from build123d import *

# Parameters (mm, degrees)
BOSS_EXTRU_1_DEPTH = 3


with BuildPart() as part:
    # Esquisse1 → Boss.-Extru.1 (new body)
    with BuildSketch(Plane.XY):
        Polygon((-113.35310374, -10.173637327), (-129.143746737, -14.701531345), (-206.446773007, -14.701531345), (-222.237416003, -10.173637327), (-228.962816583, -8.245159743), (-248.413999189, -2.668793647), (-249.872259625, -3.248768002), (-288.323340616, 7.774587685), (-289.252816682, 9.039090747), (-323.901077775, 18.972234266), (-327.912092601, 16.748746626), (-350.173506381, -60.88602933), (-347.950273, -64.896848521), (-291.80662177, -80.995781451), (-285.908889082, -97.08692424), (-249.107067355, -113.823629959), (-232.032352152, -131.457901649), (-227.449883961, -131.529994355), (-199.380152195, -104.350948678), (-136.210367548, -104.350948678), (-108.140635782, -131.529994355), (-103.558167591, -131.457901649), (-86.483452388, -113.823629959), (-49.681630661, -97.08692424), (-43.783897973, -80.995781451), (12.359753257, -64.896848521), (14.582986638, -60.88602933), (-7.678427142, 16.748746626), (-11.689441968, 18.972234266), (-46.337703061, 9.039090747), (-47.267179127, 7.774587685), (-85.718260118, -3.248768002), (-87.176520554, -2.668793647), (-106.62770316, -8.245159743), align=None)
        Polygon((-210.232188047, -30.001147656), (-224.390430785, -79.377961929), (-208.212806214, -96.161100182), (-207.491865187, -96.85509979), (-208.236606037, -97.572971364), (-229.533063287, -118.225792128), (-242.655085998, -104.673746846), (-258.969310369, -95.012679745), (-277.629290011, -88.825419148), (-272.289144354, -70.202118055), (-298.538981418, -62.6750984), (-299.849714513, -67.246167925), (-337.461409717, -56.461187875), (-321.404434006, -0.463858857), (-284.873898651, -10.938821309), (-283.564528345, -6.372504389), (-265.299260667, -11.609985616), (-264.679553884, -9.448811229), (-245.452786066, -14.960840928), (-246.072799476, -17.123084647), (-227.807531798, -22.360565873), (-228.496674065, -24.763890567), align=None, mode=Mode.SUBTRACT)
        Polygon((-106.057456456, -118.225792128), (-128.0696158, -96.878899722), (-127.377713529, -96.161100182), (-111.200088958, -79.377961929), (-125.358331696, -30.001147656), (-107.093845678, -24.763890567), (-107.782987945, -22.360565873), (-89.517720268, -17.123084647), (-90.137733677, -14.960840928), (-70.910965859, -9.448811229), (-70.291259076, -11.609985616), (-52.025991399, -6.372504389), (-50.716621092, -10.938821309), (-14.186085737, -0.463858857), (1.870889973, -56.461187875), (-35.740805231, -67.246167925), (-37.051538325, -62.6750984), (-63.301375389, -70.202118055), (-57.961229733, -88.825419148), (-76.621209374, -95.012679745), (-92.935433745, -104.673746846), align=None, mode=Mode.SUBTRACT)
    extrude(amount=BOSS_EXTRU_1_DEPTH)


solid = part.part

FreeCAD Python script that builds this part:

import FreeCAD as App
import Part
import Sketcher
from FreeCAD import Vector
Q = App.Units.Quantity

doc = App.newDocument("Part")
body = doc.addObject("PartDesign::Body", "Body")

# Sketch on XY plane
sketch1 = body.newObject("Sketcher::SketchObject", "Sketch")
sketch1.AttachmentSupport = (doc.getObject("XY_Plane"), [""])
sketch1.MapMode = "FlatFace"
sketch1.addGeometry(Part.LineSegment(Vector(-113.4, -10.2, 0), Vector(-129.1, -14.7, 0)), False)
sketch1.addGeometry(Part.LineSegment(Vector(-129.1, -14.7, 0), Vector(-206.4, -14.7, 0)), False)
sketch1.addGeometry(Part.LineSegment(Vector(-206.4, -14.7, 0), Vector(-229, -8.2, 0)), False)
sketch1.addGeometry(Part.LineSegment(Vector(-229, -8.2, 0), Vector(-248.4, -2.7, 0)), False)
sketch1.addGeometry(Part.LineSegment(Vector(-248.4, -2.7, 0), Vector(-249.9, -3.2, 0)), False)
sketch1.addGeometry(Part.LineSegment(Vector(-249.9, -3.2, 0), Vector(-288.3, 7.8, 0)), False)
sketch1.addGeometry(Part.LineSegment(Vector(-288.3, 7.8, 0), Vector(-289.3, 9, 0)), False)
sketch1.addGeometry(Part.LineSegment(Vector(-289.3, 9, 0), Vector(-323.9, 19, 0)), False)
sketch1.addGeometry(Part.LineSegment(Vector(-323.9, 19, 0), Vector(-327.9, 16.7, 0)), False)
sketch1.addGeometry(Part.LineSegment(Vector(-327.9, 16.7, 0), Vector(-350.2, -60.9, 0)), False)
sketch1.addGeometry(Part.LineSegment(Vector(-350.2, -60.9, 0), Vector(-348, -64.9, 0)), False)
sketch1.addGeometry(Part.LineSegment(Vector(-348, -64.9, 0), Vector(-291.8, -81, 0)), False)
sketch1.addGeometry(Part.LineSegment(Vector(-291.8, -81, 0), Vector(-285.9, -97.1, 0)), False)
sketch1.addGeometry(Part.LineSegment(Vector(-285.9, -97.1, 0), Vector(-249.1, -113.8, 0)), False)
sketch1.addGeometry(Part.LineSegment(Vector(-249.1, -113.8, 0), Vector(-232, -131.5, 0)), False)
sketch1.addGeometry(Part.LineSegment(Vector(-232, -131.5, 0), Vector(-227.4, -131.5, 0)), False)
sketch1.addGeometry(Part.LineSegment(Vector(-227.4, -131.5, 0), Vector(-199.4, -104.4, 0)), False)
sketch1.addGeometry(Part.LineSegment(Vector(-199.4, -104.4, 0), Vector(-136.2, -104.4, 0)), False)
sketch1.addGeometry(Part.LineSegment(Vector(-136.2, -104.4, 0), Vector(-108.1, -131.5, 0)), False)
sketch1.addGeometry(Part.LineSegment(Vector(-108.1, -131.5, 0), Vector(-103.6, -131.5, 0)), False)
sketch1.addGeometry(Part.LineSegment(Vector(-103.6, -131.5, 0), Vector(-86.5, -113.8, 0)), False)
sketch1.addGeometry(Part.LineSegment(Vector(-86.5, -113.8, 0), Vector(-49.7, -97.1, 0)), False)
sketch1.addGeometry(Part.LineSegment(Vector(-49.7, -97.1, 0), Vector(-43.8, -81, 0)), False)
sketch1.addGeometry(Part.LineSegment(Vector(-43.8, -81, 0), Vector(12.4, -64.9, 0)), False)
sketch1.addGeometry(Part.LineSegment(Vector(12.4, -64.9, 0), Vector(14.6, -60.9, 0)), False)
sketch1.addGeometry(Part.LineSegment(Vector(14.6, -60.9, 0), Vector(-7.7, 16.7, 0)), False)
sketch1.addGeometry(Part.LineSegment(Vector(-7.7, 16.7, 0), Vector(-11.7, 19, 0)), False)
sketch1.addGeometry(Part.LineSegment(Vector(-11.7, 19, 0), Vector(-46.3, 9, 0)), False)
sketch1.addGeometry(Part.LineSegment(Vector(-46.3, 9, 0), Vector(-47.3, 7.8, 0)), False)
sketch1.addGeometry(Part.LineSegment(Vector(-47.3, 7.8, 0), Vector(-85.7, -3.2, 0)), False)
sketch1.addGeometry(Part.LineSegment(Vector(-85.7, -3.2, 0), Vector(-87.2, -2.7, 0)), False)
sketch1.addGeometry(Part.LineSegment(Vector(-87.2, -2.7, 0), Vector(-106.6, -8.2, 0)), False)
sketch1.addGeometry(Part.LineSegment(Vector(-106.6, -8.2, 0), Vector(-113.4, -10.2, 0)), False)
sketch1.addGeometry(Part.LineSegment(Vector(-228.5, -24.8, 0), Vector(-210.2, -30, 0)), False)
sketch1.addGeometry(Part.LineSegment(Vector(-210.2, -30, 0), Vector(-224.4, -79.4, 0)), False)
sketch1.addGeometry(Part.LineSegment(Vector(-224.4, -79.4, 0), Vector(-208.2, -96.2, 0)), False)
sketch1.addGeometry(Part.LineSegment(Vector(-208.2, -96.2, 0), Vector(-207.5, -96.9, 0)), False)
sketch1.addGeometry(Part.LineSegment(Vector(-207.5, -96.9, 0), Vector(-208.2, -97.6, 0)), False)
sketch1.addGeometry(Part.LineSegment(Vector(-208.2, -97.6, 0), Vector(-229.5, -118.2, 0)), False)
sketch1.addGeometry(Part.LineSegment(Vector(-229.5, -118.2, 0), Vector(-242.7, -104.7, 0)), False)
sketch1.addGeometry(Part.LineSegment(Vector(-242.7, -104.7, 0), Vector(-259, -95, 0)), False)
sketch1.addGeometry(Part.LineSegment(Vector(-259, -95, 0), Vector(-277.6, -88.8, 0)), False)
sketch1.addGeometry(Part.LineSegment(Vector(-277.6, -88.8, 0), Vector(-272.3, -70.2, 0)), False)
sketch1.addGeometry(Part.LineSegment(Vector(-272.3, -70.2, 0), Vector(-298.5, -62.7, 0)), False)
sketch1.addGeometry(Part.LineSegment(Vector(-298.5, -62.7, 0), Vector(-299.8, -67.2, 0)), False)
sketch1.addGeometry(Part.LineSegment(Vector(-299.8, -67.2, 0), Vector(-337.5, -56.5, 0)), False)
sketch1.addGeometry(Part.LineSegment(Vector(-337.5, -56.5, 0), Vector(-321.4, -0.5, 0)), False)
sketch1.addGeometry(Part.LineSegment(Vector(-321.4, -0.5, 0), Vector(-284.9, -10.9, 0)), False)
sketch1.addGeometry(Part.LineSegment(Vector(-284.9, -10.9, 0), Vector(-283.6, -6.4, 0)), False)
sketch1.addGeometry(Part.LineSegment(Vector(-283.6, -6.4, 0), Vector(-265.3, -11.6, 0)), False)
sketch1.addGeometry(Part.LineSegment(Vector(-265.3, -11.6, 0), Vector(-264.7, -9.4, 0)), False)
sketch1.addGeometry(Part.LineSegment(Vector(-264.7, -9.4, 0), Vector(-245.5, -15, 0)), False)
sketch1.addGeometry(Part.LineSegment(Vector(-245.5, -15, 0), Vector(-246.1, -17.1, 0)), False)
sketch1.addGeometry(Part.LineSegment(Vector(-246.1, -17.1, 0), Vector(-227.8, -22.4, 0)), False)
sketch1.addGeometry(Part.LineSegment(Vector(-227.8, -22.4, 0), Vector(-228.5, -24.8, 0)), False)
sketch1.addGeometry(Part.LineSegment(Vector(-92.9, -104.7, 0), Vector(-106.1, -118.2, 0)), False)
sketch1.addGeometry(Part.LineSegment(Vector(-106.1, -118.2, 0), Vector(-128.1, -96.9, 0)), False)
sketch1.addGeometry(Part.LineSegment(Vector(-128.1, -96.9, 0), Vector(-127.4, -96.2, 0)), False)
sketch1.addGeometry(Part.LineSegment(Vector(-127.4, -96.2, 0), Vector(-111.2, -79.4, 0)), False)
sketch1.addGeometry(Part.LineSegment(Vector(-111.2, -79.4, 0), Vector(-125.4, -30, 0)), False)
sketch1.addGeometry(Part.LineSegment(Vector(-125.4, -30, 0), Vector(-107.1, -24.8, 0)), False)
sketch1.addGeometry(Part.LineSegment(Vector(-107.1, -24.8, 0), Vector(-107.8, -22.4, 0)), False)
sketch1.addGeometry(Part.LineSegment(Vector(-107.8, -22.4, 0), Vector(-89.5, -17.1, 0)), False)
sketch1.addGeometry(Part.LineSegment(Vector(-89.5, -17.1, 0), Vector(-90.1, -15, 0)), False)
sketch1.addGeometry(Part.LineSegment(Vector(-90.1, -15, 0), Vector(-70.9, -9.4, 0)), False)
sketch1.addGeometry(Part.LineSegment(Vector(-70.9, -9.4, 0), Vector(-70.3, -11.6, 0)), False)
sketch1.addGeometry(Part.LineSegment(Vector(-70.3, -11.6, 0), Vector(-52, -6.4, 0)), False)
sketch1.addGeometry(Part.LineSegment(Vector(-52, -6.4, 0), Vector(-50.7, -10.9, 0)), False)
sketch1.addGeometry(Part.LineSegment(Vector(-50.7, -10.9, 0), Vector(-14.2, -0.5, 0)), False)
sketch1.addGeometry(Part.LineSegment(Vector(-14.2, -0.5, 0), Vector(1.9, -56.5, 0)), False)
sketch1.addGeometry(Part.LineSegment(Vector(1.9, -56.5, 0), Vector(-35.7, -67.2, 0)), False)
sketch1.addGeometry(Part.LineSegment(Vector(-35.7, -67.2, 0), Vector(-37.1, -62.7, 0)), False)
sketch1.addGeometry(Part.LineSegment(Vector(-37.1, -62.7, 0), Vector(-63.3, -70.2, 0)), False)
sketch1.addGeometry(Part.LineSegment(Vector(-63.3, -70.2, 0), Vector(-58, -88.8, 0)), False)
sketch1.addGeometry(Part.LineSegment(Vector(-58, -88.8, 0), Vector(-76.6, -95, 0)), False)
sketch1.addGeometry(Part.LineSegment(Vector(-76.6, -95, 0), Vector(-92.9, -104.7, 0)), False)
sketch1.addConstraint(Sketcher.Constraint("Coincident", 0, 2, 1, 1))
sketch1.addConstraint(Sketcher.Constraint("Coincident", 1, 2, 2, 1))
sketch1.addConstraint(Sketcher.Constraint("Coincident", 2, 2, 3, 1))
sketch1.addConstraint(Sketcher.Constraint("Coincident", 3, 2, 4, 1))
sketch1.addConstraint(Sketcher.Constraint("Coincident", 4, 2, 5, 1))
sketch1.addConstraint(Sketcher.Constraint("Coincident", 5, 2, 6, 1))
sketch1.addConstraint(Sketcher.Constraint("Coincident", 6, 2, 7, 1))
sketch1.addConstraint(Sketcher.Constraint("Coincident", 7, 2, 8, 1))
sketch1.addConstraint(Sketcher.Constraint("Coincident", 8, 2, 9, 1))
sketch1.addConstraint(Sketcher.Constraint("Coincident", 9, 2, 10, 1))
sketch1.addConstraint(Sketcher.Constraint("Coincident", 10, 2, 11, 1))
sketch1.addConstraint(Sketcher.Constraint("Coincident", 11, 2, 12, 1))
sketch1.addConstraint(Sketcher.Constraint("Coincident", 12, 2, 13, 1))
sketch1.addConstraint(Sketcher.Constraint("Coincident", 13, 2, 14, 1))
sketch1.addConstraint(Sketcher.Constraint("Coincident", 14, 2, 15, 1))
sketch1.addConstraint(Sketcher.Constraint("Coincident", 15, 2, 16, 1))
sketch1.addConstraint(Sketcher.Constraint("Coincident", 16, 2, 17, 1))
sketch1.addConstraint(Sketcher.Constraint("Coincident", 17, 2, 18, 1))
sketch1.addConstraint(Sketcher.Constraint("Coincident", 18, 2, 19, 1))
sketch1.addConstraint(Sketcher.Constraint("Coincident", 19, 2, 20, 1))
sketch1.addConstraint(Sketcher.Constraint("Coincident", 20, 2, 21, 1))
sketch1.addConstraint(Sketcher.Constraint("Coincident", 21, 2, 22, 1))
sketch1.addConstraint(Sketcher.Constraint("Coincident", 22, 2, 23, 1))
sketch1.addConstraint(Sketcher.Constraint("Coincident", 23, 2, 24, 1))
sketch1.addConstraint(Sketcher.Constraint("Coincident", 24, 2, 25, 1))
sketch1.addConstraint(Sketcher.Constraint("Coincident", 25, 2, 26, 1))
sketch1.addConstraint(Sketcher.Constraint("Coincident", 26, 2, 27, 1))
sketch1.addConstraint(Sketcher.Constraint("Coincident", 27, 2, 28, 1))
sketch1.addConstraint(Sketcher.Constraint("Coincident", 28, 2, 29, 1))
sketch1.addConstraint(Sketcher.Constraint("Coincident", 29, 2, 30, 1))
sketch1.addConstraint(Sketcher.Constraint("Coincident", 30, 2, 31, 1))
sketch1.addConstraint(Sketcher.Constraint("Coincident", 31, 2, 32, 1))
sketch1.addConstraint(Sketcher.Constraint("Coincident", 32, 2, 0, 1))
sketch1.addConstraint(Sketcher.Constraint("Coincident", 33, 2, 34, 1))
sketch1.addConstraint(Sketcher.Constraint("Coincident", 34, 2, 35, 1))
sketch1.addConstraint(Sketcher.Constraint("Coincident", 35, 2, 36, 1))
sketch1.addConstraint(Sketcher.Constraint("Coincident", 36, 2, 37, 1))
sketch1.addConstraint(Sketcher.Constraint("Coincident", 37, 2, 38, 1))
sketch1.addConstraint(Sketcher.Constraint("Coincident", 38, 2, 39, 1))
sketch1.addConstraint(Sketcher.Constraint("Coincident", 39, 2, 40, 1))
sketch1.addConstraint(Sketcher.Constraint("Coincident", 40, 2, 41, 1))
sketch1.addConstraint(Sketcher.Constraint("Coincident", 41, 2, 42, 1))
sketch1.addConstraint(Sketcher.Constraint("Coincident", 42, 2, 43, 1))
sketch1.addConstraint(Sketcher.Constraint("Coincident", 43, 2, 44, 1))
sketch1.addConstraint(Sketcher.Constraint("Coincident", 44, 2, 45, 1))
sketch1.addConstraint(Sketcher.Constraint("Coincident", 45, 2, 46, 1))
sketch1.addConstraint(Sketcher.Constraint("Coincident", 46, 2, 47, 1))
sketch1.addConstraint(Sketcher.Constraint("Coincident", 47, 2, 48, 1))
sketch1.addConstraint(Sketcher.Constraint("Coincident", 48, 2, 49, 1))
sketch1.addConstraint(Sketcher.Constraint("Coincident", 49, 2, 50, 1))
sketch1.addConstraint(Sketcher.Constraint("Coincident", 50, 2, 51, 1))
sketch1.addConstraint(Sketcher.Constraint("Coincident", 51, 2, 52, 1))
sketch1.addConstraint(Sketcher.Constraint("Coincident", 52, 2, 53, 1))
sketch1.addConstraint(Sketcher.Constraint("Coincident", 53, 2, 54, 1))
sketch1.addConstraint(Sketcher.Constraint("Coincident", 54, 2, 33, 1))
sketch1.addConstraint(Sketcher.Constraint("Coincident", 55, 2, 56, 1))
sketch1.addConstraint(Sketcher.Constraint("Coincident", 56, 2, 57, 1))
sketch1.addConstraint(Sketcher.Constraint("Coincident", 57, 2, 58, 1))
sketch1.addConstraint(Sketcher.Constraint("Coincident", 58, 2, 59, 1))
sketch1.addConstraint(Sketcher.Constraint("Coincident", 59, 2, 60, 1))
sketch1.addConstraint(Sketcher.Constraint("Coincident", 60, 2, 61, 1))
sketch1.addConstraint(Sketcher.Constraint("Coincident", 61, 2, 62, 1))
sketch1.addConstraint(Sketcher.Constraint("Coincident", 62, 2, 63, 1))
sketch1.addConstraint(Sketcher.Constraint("Coincident", 63, 2, 64, 1))
sketch1.addConstraint(Sketcher.Constraint("Coincident", 64, 2, 65, 1))
sketch1.addConstraint(Sketcher.Constraint("Coincident", 65, 2, 66, 1))
sketch1.addConstraint(Sketcher.Constraint("Coincident", 66, 2, 67, 1))
sketch1.addConstraint(Sketcher.Constraint("Coincident", 67, 2, 68, 1))
sketch1.addConstraint(Sketcher.Constraint("Coincident", 68, 2, 69, 1))
sketch1.addConstraint(Sketcher.Constraint("Coincident", 69, 2, 70, 1))
sketch1.addConstraint(Sketcher.Constraint("Coincident", 70, 2, 71, 1))
sketch1.addConstraint(Sketcher.Constraint("Coincident", 71, 2, 72, 1))
sketch1.addConstraint(Sketcher.Constraint("Coincident", 72, 2, 73, 1))
sketch1.addConstraint(Sketcher.Constraint("Coincident", 73, 2, 74, 1))
sketch1.addConstraint(Sketcher.Constraint("Coincident", 74, 2, 75, 1))
sketch1.addConstraint(Sketcher.Constraint("Coincident", 75, 2, 55, 1))
sketch1.addConstraint(Sketcher.Constraint("Horizontal", 1))
sketch1.addConstraint(Sketcher.Constraint("Horizontal", 17))
sketch1.addConstraint(Sketcher.Constraint("Parallel", 3, 5))
sketch1.addConstraint(Sketcher.Constraint("Parallel", 5, 7))
sketch1.addConstraint(Sketcher.Constraint("Perpendicular", 2, 9))
sketch1.addConstraint(Sketcher.Constraint("Perpendicular", 9, 11))
sketch1.addConstraint(Sketcher.Constraint("Perpendicular", 14, 16))
sketch1.addConstraint(Sketcher.Constraint("Perpendicular", 18, 20))
sketch1.addConstraint(Sketcher.Constraint("Parallel", 0, 23))
sketch1.addConstraint(Sketcher.Constraint("Perpendicular", 23, 25))
sketch1.addConstraint(Sketcher.Constraint("Parallel", 27, 29))
sketch1.addConstraint(Sketcher.Constraint("Parallel", 29, 31))
sketch1.addConstraint(Sketcher.Constraint("Perpendicular", 25, 32))
sketch1.addConstraint(Sketcher.Constraint("Parallel", 11, 33))
sketch1.addConstraint(Sketcher.Constraint("Perpendicular", 35, 37))
sketch1.addConstraint(Sketcher.Constraint("Perpendicular", 16, 39))
sketch1.addConstraint(Sketcher.Constraint("Perpendicular", 33, 42))
sketch1.addConstraint(Sketcher.Constraint("Perpendicular", 42, 43))
sketch1.addConstraint(Sketcher.Constraint("Perpendicular", 43, 44))
sketch1.addConstraint(Sketcher.Constraint("Perpendicular", 44, 45))
sketch1.addConstraint(Sketcher.Constraint("Perpendicular", 45, 46))
sketch1.addConstraint(Sketcher.Constraint("Perpendicular", 46, 47))
sketch1.addConstraint(Sketcher.Constraint("Perpendicular", 47, 48))
sketch1.addConstraint(Sketcher.Constraint("Perpendicular", 48, 49))
sketch1.addConstraint(Sketcher.Constraint("Perpendicular", 49, 50))
sketch1.addConstraint(Sketcher.Constraint("Parallel", 7, 51))
sketch1.addConstraint(Sketcher.Constraint("Parallel", 50, 52))
sketch1.addConstraint(Sketcher.Constraint("Perpendicular", 52, 53))
sketch1.addConstraint(Sketcher.Constraint("Perpendicular", 53, 54))
sketch1.addConstraint(Sketcher.Constraint("Parallel", 20, 55))
sketch1.addConstraint(Sketcher.Constraint("Parallel", 57, 58))
sketch1.addConstraint(Sketcher.Constraint("Parallel", 32, 60))
sketch1.addConstraint(Sketcher.Constraint("Perpendicular", 60, 61))
sketch1.addConstraint(Sketcher.Constraint("Perpendicular", 61, 62))
sketch1.addConstraint(Sketcher.Constraint("Perpendicular", 62, 63))
sketch1.addConstraint(Sketcher.Constraint("Parallel", 31, 64))
sketch1.addConstraint(Sketcher.Constraint("Parallel", 63, 65))
sketch1.addConstraint(Sketcher.Constraint("Perpendicular", 65, 66))
sketch1.addConstraint(Sketcher.Constraint("Perpendicular", 66, 67))
sketch1.addConstraint(Sketcher.Constraint("Perpendicular", 67, 68))
sketch1.addConstraint(Sketcher.Constraint("Perpendicular", 68, 69))
sketch1.addConstraint(Sketcher.Constraint("Perpendicular", 69, 70))
sketch1.addConstraint(Sketcher.Constraint("Perpendicular", 70, 71))
sketch1.addConstraint(Sketcher.Constraint("Perpendicular", 71, 72))
sketch1.addConstraint(Sketcher.Constraint("Perpendicular", 72, 73))
sketch1.addConstraint(Sketcher.Constraint("Horizontal", 15, 2, 18, 2))
sketch1.addConstraint(Sketcher.Constraint("Horizontal", 14, 2, 19, 2))
sketch1.addConstraint(Sketcher.Constraint("Horizontal", 13, 2, 20, 2))
sketch1.addConstraint(Sketcher.Constraint("Horizontal", 12, 2, 21, 2))
sketch1.addConstraint(Sketcher.Constraint("Horizontal", 11, 2, 22, 2))
sketch1.addConstraint(Sketcher.Constraint("Horizontal", 10, 2, 23, 2))
sketch1.addConstraint(Sketcher.Constraint("Horizontal", 9, 2, 24, 2))
sketch1.addConstraint(Sketcher.Constraint("Horizontal", 8, 2, 25, 2))
sketch1.addConstraint(Sketcher.Constraint("Horizontal", 7, 2, 26, 2))
sketch1.addConstraint(Sketcher.Constraint("Horizontal", 6, 2, 27, 2))
sketch1.addConstraint(Sketcher.Constraint("Horizontal", 5, 2, 28, 2))
sketch1.addConstraint(Sketcher.Constraint("Horizontal", 4, 2, 29, 2))
sketch1.addConstraint(Sketcher.Constraint("Horizontal", 3, 2, 30, 2))
sketch1.addConstraint(Sketcher.Constraint("Horizontal", 2, 2, 31, 2))
sketch1.addConstraint(Sketcher.Constraint("Horizontal", 38, 2, 55, 2))
sketch1.addConstraint(Sketcher.Constraint("Horizontal", 35, 2, 57, 2))
sketch1.addConstraint(Sketcher.Constraint("Horizontal", 34, 2, 58, 2))
sketch1.addConstraint(Sketcher.Constraint("Horizontal", 33, 2, 59, 2))
sketch1.addConstraint(Sketcher.Constraint("Horizontal", 54, 2, 60, 2))
sketch1.addConstraint(Sketcher.Constraint("Horizontal", 53, 2, 61, 2))
sketch1.addConstraint(Sketcher.Constraint("Horizontal", 52, 2, 62, 2))
sketch1.addConstraint(Sketcher.Constraint("Horizontal", 51, 2, 63, 2))
sketch1.addConstraint(Sketcher.Constraint("Horizontal", 50, 2, 64, 2))
sketch1.addConstraint(Sketcher.Constraint("Horizontal", 49, 2, 65, 2))
sketch1.addConstraint(Sketcher.Constraint("Horizontal", 48, 2, 66, 2))
sketch1.addConstraint(Sketcher.Constraint("Horizontal", 47, 2, 67, 2))
sketch1.addConstraint(Sketcher.Constraint("Horizontal", 46, 2, 68, 2))
sketch1.addConstraint(Sketcher.Constraint("Horizontal", 45, 2, 69, 2))
sketch1.addConstraint(Sketcher.Constraint("Horizontal", 44, 2, 70, 2))
sketch1.addConstraint(Sketcher.Constraint("Horizontal", 43, 2, 71, 2))
sketch1.addConstraint(Sketcher.Constraint("Horizontal", 42, 2, 72, 2))
sketch1.addConstraint(Sketcher.Constraint("Horizontal", 41, 2, 73, 2))
sketch1.addConstraint(Sketcher.Constraint("Horizontal", 40, 2, 74, 2))
sketch1.addConstraint(Sketcher.Constraint("Horizontal", 39, 2, 75, 2))
sketch1.addConstraint(Sketcher.Constraint("Equal", 4, 6))
sketch1.addConstraint(Sketcher.Constraint("Equal", 16, 18))
sketch1.addConstraint(Sketcher.Constraint("Equal", 15, 19))
sketch1.addConstraint(Sketcher.Constraint("Equal", 13, 21))
sketch1.addConstraint(Sketcher.Constraint("Equal", 12, 22))
sketch1.addConstraint(Sketcher.Constraint("Equal", 11, 23))
sketch1.addConstraint(Sketcher.Constraint("Equal", 10, 24))
sketch1.addConstraint(Sketcher.Constraint("Equal", 8, 26))
sketch1.addConstraint(Sketcher.Constraint("Equal", 7, 27))
sketch1.addConstraint(Sketcher.Constraint("Equal", 6, 28))
sketch1.addConstraint(Sketcher.Constraint("Equal", 28, 30))
sketch1.addConstraint(Sketcher.Constraint("Equal", 49, 53))
sketch1.addConstraint(Sketcher.Constraint("Equal", 35, 58))
sketch1.addConstraint(Sketcher.Constraint("Equal", 34, 59))
sketch1.addConstraint(Sketcher.Constraint("Equal", 41, 74))
sketch1.addConstraint(Sketcher.Constraint("Equal", 40, 75))
sketch1.addConstraint(Sketcher.Constraint("Angle", 0, Q("-164 deg")))
sketch1.addConstraint(Sketcher.Constraint("Angle", 10, Q("-61 deg")))
sketch1.addConstraint(Sketcher.Constraint("Distance", 5, 40.0))
sketch1.addConstraint(Sketcher.Constraint("DistanceX", 3, 2, -1, 1, 248.413999))
sketch1.addConstraint(Sketcher.Constraint("DistanceY", 14, 2, -1, 1, 131.457902))
sketch1.addConstraint(Sketcher.Constraint("DistanceY", 35, 2, -1, 1, 96.1611))
sketch1.addConstraint(Sketcher.Constraint("DistanceY", 36, 2, -1, 1, 96.8551))
sketch1.addConstraint(Sketcher.Constraint("DistanceY", 43, 2, -1, 1, 62.675098))
sketch1.addConstraint(Sketcher.Constraint("DistanceX", 47, 2, -1, 1, 284.873899))
sketch1.addConstraint(Sketcher.Constraint("DistanceX", 52, 2, -1, 1, 246.072799))
sketch1.addConstraint(Sketcher.Constraint("DistanceY", 56, 2, -1, 1, 96.8789))
sketch1.addConstraint(Sketcher.Constraint("Distance", 3, 20.234732))
sketch1.addConstraint(Sketcher.Constraint("Distance", 4, 1.569361))
sketch1.addConstraint(Sketcher.Constraint("Distance", 7, 36.043992))
sketch1.addConstraint(Sketcher.Constraint("Distance", 8, 4.586081))
sketch1.addConstraint(Sketcher.Constraint("Distance", 11, 58.406209))
sketch1.addConstraint(Sketcher.Constraint("Distance", 14, 24.546149))
sketch1.addConstraint(Sketcher.Constraint("Distance", 16, 39.071862))
sketch1.addConstraint(Sketcher.Constraint("Distance", 32, 6.99643))
sketch1.addConstraint(Sketcher.Constraint("Distance", 34, 51.366581))
sketch1.addConstraint(Sketcher.Constraint("Distance", 35, 23.310711))
sketch1.addConstraint(Sketcher.Constraint("Distance", 38, 29.66611))
sketch1.addConstraint(Sketcher.Constraint("Distance", 41, 19.659019))
sketch1.addConstraint(Sketcher.Constraint("Distance", 42, 19.37381))
sketch1.addConstraint(Sketcher.Constraint("Distance", 43, 27.307691))
sketch1.addConstraint(Sketcher.Constraint("Distance", 44, 4.755281))
sketch1.addConstraint(Sketcher.Constraint("Distance", 46, 58.25399))
sketch1.addConstraint(Sketcher.Constraint("Distance", 50, 2.248268))
sketch1.addConstraint(Sketcher.Constraint("Distance", 52, 2.249381))
sketch1.addConstraint(Sketcher.Constraint("Distance", 56, 30.663088))
sketch1.addConstraint(Sketcher.Constraint("DistanceX", 1, 2, 1, 1, 77.303026))
sketch1.addConstraint(Sketcher.Constraint("DistanceX", 17, 1, 17, 2, 63.169785))
sketch1.addConstraint(Sketcher.Constraint("DistanceY", 0, 2, -1, 1, 14.701531))
sketch1.addConstraint(Sketcher.Constraint("DistanceY", 2, 2, -1, 1, 8.24516))
sketch1.addConstraint(Sketcher.Constraint("DistanceX", 4, 2, -1, 1, 249.87226))
sketch1.addConstraint(Sketcher.Constraint("DistanceY", 4, 2, -1, 1, 3.248768))
sketch1.addConstraint(Sketcher.Constraint("DistanceY", -1, 1, 6, 2, 9.039091))
sketch1.addConstraint(Sketcher.Constraint("DistanceY", 9, 2, -1, 1, 60.886029))
sketch1.addConstraint(Sketcher.Constraint("DistanceY", 10, 2, -1, 1, 64.896849))
sketch1.addConstraint(Sketcher.Constraint("DistanceX", 11, 2, -1, 1, 291.806622))
sketch1.addConstraint(Sketcher.Constraint("DistanceX", 12, 2, -1, 1, 285.908889))
sketch1.addConstraint(Sketcher.Constraint("DistanceY", 13, 2, -1, 1, 113.82363))
sketch1.addConstraint(Sketcher.Constraint("DistanceY", 16, 2, -1, 1, 104.350949))
sketch1.addConstraint(Sketcher.Constraint("DistanceX", 33, 2, -1, 1, 210.232188))
sketch1.addConstraint(Sketcher.Constraint("DistanceX", 34, 2, -1, 1, 224.390431))
sketch1.addConstraint(Sketcher.Constraint("DistanceY", 34, 2, -1, 1, 79.377962))
sketch1.addConstraint(Sketcher.Constraint("DistanceY", 37, 2, -1, 1, 97.572971))
sketch1.addConstraint(Sketcher.Constraint("DistanceX", 40, 2, -1, 1, 258.96931))
sketch1.addConstraint(Sketcher.Constraint("DistanceY", 40, 2, -1, 1, 95.01268))
sketch1.addConstraint(Sketcher.Constraint("DistanceX", 45, 2, -1, 1, 337.46141))
sketch1.addConstraint(Sketcher.Constraint("DistanceX", 48, 2, -1, 1, 283.564528))
sketch1.addConstraint(Sketcher.Constraint("DistanceX", 49, 2, -1, 1, 265.299261))
sketch1.addConstraint(Sketcher.Constraint("DistanceX", 58, 2, -1, 1, 111.200089))
sketch1.addConstraint(Sketcher.Constraint("Distance", 12, 17.137915))
sketch1.addConstraint(Sketcher.Constraint("Distance", 13, 40.428844))
sketch1.addConstraint(Sketcher.Constraint("Distance", 39, 18.863865))
sketch1.addConstraint(Sketcher.Constraint("Distance", 40, 18.960225))
pad1 = body.newObject("PartDesign::Pad", "Pad")
pad1.Profile = sketch1
pad1.Length = 3

doc.recompute()
